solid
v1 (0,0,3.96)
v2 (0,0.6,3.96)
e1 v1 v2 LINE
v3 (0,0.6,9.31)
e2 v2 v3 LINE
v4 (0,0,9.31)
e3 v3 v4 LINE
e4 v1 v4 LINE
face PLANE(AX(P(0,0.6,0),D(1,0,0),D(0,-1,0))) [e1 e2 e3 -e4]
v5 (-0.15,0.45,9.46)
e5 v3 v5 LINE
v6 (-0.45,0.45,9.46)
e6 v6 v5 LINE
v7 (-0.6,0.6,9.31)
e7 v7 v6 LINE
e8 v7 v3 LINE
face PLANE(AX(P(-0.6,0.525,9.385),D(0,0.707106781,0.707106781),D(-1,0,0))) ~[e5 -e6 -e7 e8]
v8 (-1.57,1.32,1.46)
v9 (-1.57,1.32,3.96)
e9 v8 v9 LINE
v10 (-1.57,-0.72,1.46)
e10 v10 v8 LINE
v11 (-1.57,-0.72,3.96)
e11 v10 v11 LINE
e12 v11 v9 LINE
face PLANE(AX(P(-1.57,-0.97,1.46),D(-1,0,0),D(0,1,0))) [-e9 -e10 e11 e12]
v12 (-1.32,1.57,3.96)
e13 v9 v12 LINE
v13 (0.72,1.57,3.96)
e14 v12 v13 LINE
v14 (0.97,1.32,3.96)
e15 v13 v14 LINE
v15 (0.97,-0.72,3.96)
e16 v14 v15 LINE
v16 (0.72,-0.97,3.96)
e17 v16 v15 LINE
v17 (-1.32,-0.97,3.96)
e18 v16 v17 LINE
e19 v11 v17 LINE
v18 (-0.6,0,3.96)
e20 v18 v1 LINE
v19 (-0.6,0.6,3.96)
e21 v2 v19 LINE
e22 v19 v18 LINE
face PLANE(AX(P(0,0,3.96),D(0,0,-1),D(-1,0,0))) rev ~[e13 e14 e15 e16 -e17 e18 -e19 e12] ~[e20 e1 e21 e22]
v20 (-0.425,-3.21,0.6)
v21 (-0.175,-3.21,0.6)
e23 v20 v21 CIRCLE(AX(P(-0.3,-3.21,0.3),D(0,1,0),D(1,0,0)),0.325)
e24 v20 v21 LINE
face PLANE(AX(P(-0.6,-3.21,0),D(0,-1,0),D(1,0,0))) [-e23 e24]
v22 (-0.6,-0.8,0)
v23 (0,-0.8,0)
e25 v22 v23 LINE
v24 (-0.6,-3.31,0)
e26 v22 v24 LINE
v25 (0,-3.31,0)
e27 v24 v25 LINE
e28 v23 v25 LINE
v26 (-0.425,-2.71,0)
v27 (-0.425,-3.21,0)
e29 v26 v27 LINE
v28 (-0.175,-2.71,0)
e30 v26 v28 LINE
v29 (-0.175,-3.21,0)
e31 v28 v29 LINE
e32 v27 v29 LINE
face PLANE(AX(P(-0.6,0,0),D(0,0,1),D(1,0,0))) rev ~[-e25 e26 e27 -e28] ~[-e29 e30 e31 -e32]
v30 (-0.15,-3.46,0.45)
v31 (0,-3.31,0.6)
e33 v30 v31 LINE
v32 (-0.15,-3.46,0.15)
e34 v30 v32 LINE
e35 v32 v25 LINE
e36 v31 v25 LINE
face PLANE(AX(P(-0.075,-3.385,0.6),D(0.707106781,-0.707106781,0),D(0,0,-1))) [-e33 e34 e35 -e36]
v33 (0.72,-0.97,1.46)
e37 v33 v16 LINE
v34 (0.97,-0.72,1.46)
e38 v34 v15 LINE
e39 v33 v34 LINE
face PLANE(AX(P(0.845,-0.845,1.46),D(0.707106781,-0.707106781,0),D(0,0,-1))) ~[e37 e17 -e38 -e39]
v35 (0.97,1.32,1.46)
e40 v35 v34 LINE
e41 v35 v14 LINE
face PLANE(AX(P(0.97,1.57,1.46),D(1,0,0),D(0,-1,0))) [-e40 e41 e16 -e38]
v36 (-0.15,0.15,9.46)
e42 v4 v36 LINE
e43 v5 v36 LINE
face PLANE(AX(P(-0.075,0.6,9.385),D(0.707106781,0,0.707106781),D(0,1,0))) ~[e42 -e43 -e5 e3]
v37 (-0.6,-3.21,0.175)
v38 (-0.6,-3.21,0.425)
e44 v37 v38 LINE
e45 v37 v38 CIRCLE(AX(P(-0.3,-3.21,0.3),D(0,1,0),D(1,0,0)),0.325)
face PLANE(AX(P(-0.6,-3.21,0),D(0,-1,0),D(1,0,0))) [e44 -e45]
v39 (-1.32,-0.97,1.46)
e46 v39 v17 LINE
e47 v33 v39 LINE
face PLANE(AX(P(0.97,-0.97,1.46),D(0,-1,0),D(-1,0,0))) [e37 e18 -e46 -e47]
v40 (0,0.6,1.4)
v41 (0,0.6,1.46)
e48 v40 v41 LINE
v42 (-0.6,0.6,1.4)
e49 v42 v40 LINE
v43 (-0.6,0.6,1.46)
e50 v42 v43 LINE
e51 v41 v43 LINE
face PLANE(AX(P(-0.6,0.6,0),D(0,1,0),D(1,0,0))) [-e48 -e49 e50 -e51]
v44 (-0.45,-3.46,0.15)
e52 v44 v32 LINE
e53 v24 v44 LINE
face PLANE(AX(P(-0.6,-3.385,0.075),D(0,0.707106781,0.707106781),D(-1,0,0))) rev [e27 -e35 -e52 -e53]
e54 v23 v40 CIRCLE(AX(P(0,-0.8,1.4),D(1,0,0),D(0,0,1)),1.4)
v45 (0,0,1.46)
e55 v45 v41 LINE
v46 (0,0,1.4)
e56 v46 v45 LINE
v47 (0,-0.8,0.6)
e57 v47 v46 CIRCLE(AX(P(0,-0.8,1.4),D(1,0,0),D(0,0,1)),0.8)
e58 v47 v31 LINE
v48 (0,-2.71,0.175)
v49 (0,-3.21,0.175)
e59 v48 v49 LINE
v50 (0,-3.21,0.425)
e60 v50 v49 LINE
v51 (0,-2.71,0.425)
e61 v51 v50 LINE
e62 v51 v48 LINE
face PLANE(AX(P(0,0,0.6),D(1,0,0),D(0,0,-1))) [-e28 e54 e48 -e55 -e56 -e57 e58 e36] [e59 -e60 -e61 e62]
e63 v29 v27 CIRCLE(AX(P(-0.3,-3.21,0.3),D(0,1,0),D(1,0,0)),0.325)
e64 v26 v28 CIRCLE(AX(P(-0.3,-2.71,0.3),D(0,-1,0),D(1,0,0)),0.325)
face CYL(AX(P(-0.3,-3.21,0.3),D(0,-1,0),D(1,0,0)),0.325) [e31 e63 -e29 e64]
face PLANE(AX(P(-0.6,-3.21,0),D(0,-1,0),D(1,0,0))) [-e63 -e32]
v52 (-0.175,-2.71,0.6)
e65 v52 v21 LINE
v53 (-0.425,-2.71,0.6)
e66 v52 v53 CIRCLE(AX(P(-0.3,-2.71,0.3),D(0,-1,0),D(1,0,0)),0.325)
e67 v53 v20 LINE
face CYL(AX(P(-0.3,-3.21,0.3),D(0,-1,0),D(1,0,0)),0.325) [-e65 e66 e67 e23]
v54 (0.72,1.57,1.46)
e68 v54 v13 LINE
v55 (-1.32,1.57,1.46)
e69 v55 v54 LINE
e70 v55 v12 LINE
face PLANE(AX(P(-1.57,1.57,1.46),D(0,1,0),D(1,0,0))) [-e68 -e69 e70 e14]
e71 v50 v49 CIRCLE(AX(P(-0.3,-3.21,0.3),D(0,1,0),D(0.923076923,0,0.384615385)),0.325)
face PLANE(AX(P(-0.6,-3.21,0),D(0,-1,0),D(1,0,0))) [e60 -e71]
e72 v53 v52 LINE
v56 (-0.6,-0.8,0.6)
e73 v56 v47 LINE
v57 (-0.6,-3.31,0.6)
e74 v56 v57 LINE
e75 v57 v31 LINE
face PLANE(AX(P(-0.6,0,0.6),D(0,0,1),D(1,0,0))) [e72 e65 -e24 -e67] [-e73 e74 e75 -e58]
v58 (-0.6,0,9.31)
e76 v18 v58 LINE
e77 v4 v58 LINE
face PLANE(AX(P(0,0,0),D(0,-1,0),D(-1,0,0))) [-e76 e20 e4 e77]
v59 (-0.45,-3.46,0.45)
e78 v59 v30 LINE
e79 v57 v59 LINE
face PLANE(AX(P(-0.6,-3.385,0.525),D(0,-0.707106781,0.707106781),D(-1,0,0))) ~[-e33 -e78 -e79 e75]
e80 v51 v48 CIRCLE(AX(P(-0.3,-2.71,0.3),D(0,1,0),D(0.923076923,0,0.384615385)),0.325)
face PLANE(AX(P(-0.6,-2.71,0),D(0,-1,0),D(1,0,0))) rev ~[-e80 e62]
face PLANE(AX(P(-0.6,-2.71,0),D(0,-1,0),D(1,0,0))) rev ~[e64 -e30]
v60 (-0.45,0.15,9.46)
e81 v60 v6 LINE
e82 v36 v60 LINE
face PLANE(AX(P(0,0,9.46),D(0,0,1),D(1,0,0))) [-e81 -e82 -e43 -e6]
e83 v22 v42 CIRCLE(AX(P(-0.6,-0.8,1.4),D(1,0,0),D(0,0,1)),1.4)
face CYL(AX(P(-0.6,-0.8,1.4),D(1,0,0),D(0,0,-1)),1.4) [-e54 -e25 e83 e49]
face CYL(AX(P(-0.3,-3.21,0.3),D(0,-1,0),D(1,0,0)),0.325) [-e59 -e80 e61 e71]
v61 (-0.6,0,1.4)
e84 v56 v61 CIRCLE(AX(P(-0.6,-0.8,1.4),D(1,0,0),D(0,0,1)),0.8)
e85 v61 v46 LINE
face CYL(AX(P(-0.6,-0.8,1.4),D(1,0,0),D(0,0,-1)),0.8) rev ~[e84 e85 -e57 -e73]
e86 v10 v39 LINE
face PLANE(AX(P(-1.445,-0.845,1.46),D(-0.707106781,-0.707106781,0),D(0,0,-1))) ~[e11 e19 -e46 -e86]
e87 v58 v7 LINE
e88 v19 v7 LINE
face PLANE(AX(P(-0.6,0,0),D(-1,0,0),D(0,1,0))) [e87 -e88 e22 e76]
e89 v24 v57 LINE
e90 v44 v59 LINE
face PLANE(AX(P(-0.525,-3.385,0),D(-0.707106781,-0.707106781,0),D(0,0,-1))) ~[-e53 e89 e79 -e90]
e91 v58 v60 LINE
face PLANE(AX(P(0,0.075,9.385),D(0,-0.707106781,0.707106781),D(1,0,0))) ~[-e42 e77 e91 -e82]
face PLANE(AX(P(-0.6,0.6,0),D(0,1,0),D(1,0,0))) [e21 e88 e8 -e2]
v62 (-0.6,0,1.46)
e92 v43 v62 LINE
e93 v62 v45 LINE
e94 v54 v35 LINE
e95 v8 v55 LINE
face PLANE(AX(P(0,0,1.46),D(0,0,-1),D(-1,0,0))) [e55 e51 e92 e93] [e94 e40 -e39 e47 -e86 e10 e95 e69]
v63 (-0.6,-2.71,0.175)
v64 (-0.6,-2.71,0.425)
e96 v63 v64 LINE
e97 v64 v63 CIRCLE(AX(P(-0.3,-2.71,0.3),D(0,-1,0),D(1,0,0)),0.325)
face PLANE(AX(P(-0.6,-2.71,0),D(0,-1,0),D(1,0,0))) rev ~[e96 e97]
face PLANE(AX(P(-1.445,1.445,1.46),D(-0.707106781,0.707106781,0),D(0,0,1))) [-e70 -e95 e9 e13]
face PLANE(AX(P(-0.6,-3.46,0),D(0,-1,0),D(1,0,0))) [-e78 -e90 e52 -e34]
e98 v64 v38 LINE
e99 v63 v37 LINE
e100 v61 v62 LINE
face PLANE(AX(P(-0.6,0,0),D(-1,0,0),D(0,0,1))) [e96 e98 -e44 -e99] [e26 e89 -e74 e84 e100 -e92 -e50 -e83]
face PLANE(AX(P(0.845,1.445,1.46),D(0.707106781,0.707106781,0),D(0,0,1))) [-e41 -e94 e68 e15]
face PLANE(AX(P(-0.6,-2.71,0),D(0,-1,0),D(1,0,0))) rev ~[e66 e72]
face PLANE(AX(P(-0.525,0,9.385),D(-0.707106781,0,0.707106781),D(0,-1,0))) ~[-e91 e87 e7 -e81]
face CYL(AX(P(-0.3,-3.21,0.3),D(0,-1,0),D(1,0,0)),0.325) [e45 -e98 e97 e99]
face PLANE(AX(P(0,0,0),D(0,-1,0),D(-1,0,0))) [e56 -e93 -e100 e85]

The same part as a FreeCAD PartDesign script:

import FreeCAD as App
import Part
import Sketcher


def edges_at(feature, points):
    """Names of the edges that pass closest to the given points."""
    edges = feature.Shape.Edges
    near = lambda p: min(range(len(edges)), key=lambda i: edges[i].distToShape(Part.Vertex(*p))[0])
    return sorted({f"Edge{near(p) + 1}" for p in points})

doc = App.newDocument("Part")
body = doc.addObject("PartDesign::Body", "Body")

sketch1 = doc.addObject("Sketcher::SketchObject", "Sketch")
body.addObject(sketch1)
sketch1.AttachmentSupport = (doc.XY_Plane, [""])
sketch1.MapMode = "FlatFace"
sketch1.addGeometry(Part.LineSegment(App.Vector(-0.6, 0, 0), App.Vector(0, 0, 0)), False)
sketch1.addGeometry(Part.LineSegment(App.Vector(0, 0, 0), App.Vector(0, 0.6, 0)), False)
sketch1.addGeometry(Part.LineSegment(App.Vector(0, 0.6, 0), App.Vector(-0.6, 0.6, 0)), False)
sketch1.addGeometry(Part.LineSegment(App.Vector(-0.6, 0.6, 0), App.Vector(-0.6, 0, 0)), False)
sketch1.addConstraint(Sketcher.Constraint("Coincident", 0, 2, 1, 1))
sketch1.addConstraint(Sketcher.Constraint("Coincident", 1, 2, 2, 1))
sketch1.addConstraint(Sketcher.Constraint("Coincident", 2, 2, 3, 1))
sketch1.addConstraint(Sketcher.Constraint("Coincident", 3, 2, 0, 1))
sketch1.addConstraint(Sketcher.Constraint("Horizontal", 0))
sketch1.addConstraint(Sketcher.Constraint("Vertical", 1))
sketch1.addConstraint(Sketcher.Constraint("Horizontal", 2))
sketch1.addConstraint(Sketcher.Constraint("Vertical", 3))
sketch1.addConstraint(Sketcher.Constraint("Coincident", 0, 2, -1, 1))
sketch1.addConstraint(Sketcher.Constraint("Equal", 2, 1))
sketch1.addConstraint(Sketcher.Constraint("DistanceX", 0, 1, 0, 2, 0.6))
pad1 = doc.addObject("PartDesign::Pad", "Pad")
body.addObject(pad1)
pad1.Profile = sketch1
pad1.Length = 9.46

sketch2 = doc.addObject("Sketcher::SketchObject", "Sketch001")
body.addObject(sketch2)
sketch2.AttachmentSupport = (doc.XY_Plane, [""])
sketch2.MapMode = "FlatFace"
sketch2.AttachmentOffset = App.Placement(App.Vector(0, 0, 1.46), App.Rotation())
sketch2.addGeometry(Part.LineSegment(App.Vector(-1.6, -1, 0), App.Vector(-1.6, 1.6, 0)), False)
sketch2.addGeometry(Part.LineSegment(App.Vector(-1.6, 1.6, 0), App.Vector(1, 1.6, 0)), False)
sketch2.addGeometry(Part.LineSegment(App.Vector(1, 1.6, 0), App.Vector(1, -1, 0)), False)
sketch2.addGeometry(Part.LineSegment(App.Vector(1, -1, 0), App.Vector(-1.6, -1, 0)), False)
sketch2.addConstraint(Sketcher.Constraint("Coincident", 0, 2, 1, 1))
sketch2.addConstraint(Sketcher.Constraint("Coincident", 1, 2, 2, 1))
sketch2.addConstraint(Sketcher.Constraint("Coincident", 2, 2, 3, 1))
sketch2.addConstraint(Sketcher.Constraint("Coincident", 3, 2, 0, 1))
sketch2.addConstraint(Sketcher.Constraint("Vertical", 0))
sketch2.addConstraint(Sketcher.Constraint("Horizontal", 1))
sketch2.addConstraint(Sketcher.Constraint("Vertical", 2))
sketch2.addConstraint(Sketcher.Constraint("Horizontal", 3))
sketch2.addConstraint(Sketcher.Constraint("Equal", 3, 0))
sketch2.addConstraint(Sketcher.Constraint("DistanceX", 1, 1, 1, 2, 2.54))
sketch2.addConstraint(Sketcher.Constraint("DistanceX", -1, 1, 1, 2, 0.97))
sketch2.addConstraint(Sketcher.Constraint("DistanceY", 2, 2, -1, 1, 0.97))
pad2 = doc.addObject("PartDesign::Pad", "Pad001")
body.addObject(pad2)
pad2.Profile = sketch2
pad2.Length = 2.5
doc.recompute()

chamfer = doc.addObject("PartDesign::Chamfer", "Chamfer")
body.addObject(chamfer)
chamfer.Base = (pad2, edges_at(pad2, [
    (0.97, -0.97, 2.71),
    (-1.57, -0.97, 2.71),
    (-1.57, 1.57, 2.71),
    (0.97, 1.57, 2.71),
]))
chamfer.Size = 0.25

sketch3 = doc.addObject("Sketcher::SketchObject", "Sketch002")
body.addObject(sketch3)
sketch3.AttachmentSupport = (doc.XZ_Plane, [""])
sketch3.MapMode = "FlatFace"
sketch3.addGeometry(Part.LineSegment(App.Vector(-0.6, 0.6, 0), App.Vector(-0.6, 0, 0)), False)
sketch3.addGeometry(Part.LineSegment(App.Vector(-0.6, 0, 0), App.Vector(0, 0, 0)), False)
sketch3.addGeometry(Part.LineSegment(App.Vector(0, 0, 0), App.Vector(0, 0.6, 0)), False)
sketch3.addGeometry(Part.LineSegment(App.Vector(0, 0.6, 0), App.Vector(-0.6, 0.6, 0)), False)
sketch3.addConstraint(Sketcher.Constraint("Coincident", 0, 2, 1, 1))
sketch3.addConstraint(Sketcher.Constraint("Coincident", 1, 2, 2, 1))
sketch3.addConstraint(Sketcher.Constraint("Coincident", 2, 2, 3, 1))
sketch3.addConstraint(Sketcher.Constraint("Coincident", 3, 2, 0, 1))
sketch3.addConstraint(Sketcher.Constraint("Vertical", 0))
sketch3.addConstraint(Sketcher.Constraint("Horizontal", 1))
sketch3.addConstraint(Sketcher.Constraint("Vertical", 2))
sketch3.addConstraint(Sketcher.Constraint("Horizontal", 3))
sketch3.addConstraint(Sketcher.Constraint("Coincident", 1, 2, -1, 1))
sketch3.addConstraint(Sketcher.Constraint("Equal", 3, 0))
sketch3.addConstraint(Sketcher.Constraint("DistanceX", 1, 1, 1, 2, 0.6))
pad3 = doc.addObject("PartDesign::Pad", "Pad002")
body.addObject(pad3)
pad3.Profile = sketch3
pad3.Length = 3.46
doc.recompute()

chamfer2 = doc.addObject("PartDesign::Chamfer", "Chamfer001")
body.addObject(chamfer2)
chamfer2.Base = (pad3, edges_at(pad3, [
    (-0.6, 0.3, 9.46),
    (-0.3, 0, 9.46),
    (0, 0.3, 9.46),
    (-0.3, 0.6, 9.46),
    (0, -3.46, 0.3),
    (-0.3, -3.46, 0.6),
    (-0.3, -3.46, 0),
    (-0.6, -3.46, 0.3),
]))
chamfer2.Size = 0.15

sketch4 = doc.addObject("Sketcher::SketchObject", "Sketch003")
body.addObject(sketch4)
sketch4.AttachmentSupport = (doc.XZ_Plane, [""])
sketch4.MapMode = "FlatFace"
sketch4.AttachmentOffset = App.Placement(App.Vector(0, 0, 3.21), App.Rotation())
sketch4.addGeometry(Part.Circle(App.Vector(-0.3, 0.3, 0), App.Vector(0, 0, 1), 0.33), False)
sketch4.addConstraint(Sketcher.Constraint("Diameter", 0, 0.65))
sketch4.addConstraint(Sketcher.Constraint("DistanceX", 0, 3, -1, 1, 0.3))
sketch4.addConstraint(Sketcher.Constraint("DistanceY", -1, 1, 0, 3, 0.3))
pad4 = doc.addObject("PartDesign::Pad", "Pad003")
body.addObject(pad4)
pad4.Profile = sketch4
pad4.Length = 0.5
pad4.Reversed = True
doc.recompute()

fillet = doc.addObject("PartDesign::Fillet", "Fillet")
body.addObject(fillet)
fillet.Base = (pad4, edges_at(pad4, [(-0.3, 0.6, 0)]))
fillet.Radius = 1.4
doc.recompute()

fillet2 = doc.addObject("PartDesign::Fillet", "Fillet001")
body.addObject(fillet2)
fillet2.Base = (fillet, edges_at(fillet, [(-0.3, 0, 0.6)]))
fillet2.Radius = 0.8

doc.recompute()
